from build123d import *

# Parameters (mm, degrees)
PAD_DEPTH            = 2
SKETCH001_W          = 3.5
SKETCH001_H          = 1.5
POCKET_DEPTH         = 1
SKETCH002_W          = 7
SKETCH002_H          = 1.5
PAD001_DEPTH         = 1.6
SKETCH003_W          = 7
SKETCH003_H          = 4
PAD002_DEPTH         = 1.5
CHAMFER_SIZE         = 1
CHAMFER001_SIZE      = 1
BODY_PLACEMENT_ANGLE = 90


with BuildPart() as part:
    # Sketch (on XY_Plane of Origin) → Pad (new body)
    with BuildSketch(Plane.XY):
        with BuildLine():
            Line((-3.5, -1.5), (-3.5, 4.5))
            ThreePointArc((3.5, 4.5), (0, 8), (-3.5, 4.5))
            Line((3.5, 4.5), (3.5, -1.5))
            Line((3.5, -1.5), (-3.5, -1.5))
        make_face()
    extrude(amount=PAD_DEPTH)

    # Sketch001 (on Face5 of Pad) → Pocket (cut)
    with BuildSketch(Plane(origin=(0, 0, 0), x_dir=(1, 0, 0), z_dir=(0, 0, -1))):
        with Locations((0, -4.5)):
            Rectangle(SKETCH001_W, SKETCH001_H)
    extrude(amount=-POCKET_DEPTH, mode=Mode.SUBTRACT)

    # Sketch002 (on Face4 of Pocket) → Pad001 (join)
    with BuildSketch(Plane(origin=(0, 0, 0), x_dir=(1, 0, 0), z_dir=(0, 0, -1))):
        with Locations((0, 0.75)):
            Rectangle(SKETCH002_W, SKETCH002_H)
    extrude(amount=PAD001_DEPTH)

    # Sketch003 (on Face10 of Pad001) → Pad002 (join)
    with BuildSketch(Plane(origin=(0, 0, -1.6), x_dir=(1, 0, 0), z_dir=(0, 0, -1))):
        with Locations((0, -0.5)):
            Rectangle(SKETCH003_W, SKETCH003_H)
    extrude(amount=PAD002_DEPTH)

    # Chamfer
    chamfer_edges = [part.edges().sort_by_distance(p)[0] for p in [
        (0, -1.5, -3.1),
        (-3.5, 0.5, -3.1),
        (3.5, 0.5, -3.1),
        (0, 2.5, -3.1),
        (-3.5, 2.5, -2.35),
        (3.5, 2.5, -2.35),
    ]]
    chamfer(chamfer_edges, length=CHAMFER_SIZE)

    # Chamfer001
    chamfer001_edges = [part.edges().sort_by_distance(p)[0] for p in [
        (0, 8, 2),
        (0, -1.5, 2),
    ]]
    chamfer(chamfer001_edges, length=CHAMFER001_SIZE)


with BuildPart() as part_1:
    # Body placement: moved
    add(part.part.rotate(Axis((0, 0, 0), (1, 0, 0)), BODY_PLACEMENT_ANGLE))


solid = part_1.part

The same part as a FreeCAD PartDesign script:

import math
import FreeCAD as App
import Part
import Sketcher
from FreeCAD import Vector


def edges_at(feature, points):
    """Names of the edges that pass closest to the given points."""
    edges = feature.Shape.Edges
    near = lambda p: min(range(len(edges)), key=lambda i: edges[i].distToShape(Part.Vertex(*p))[0])
    return sorted({f"Edge{near(p) + 1}" for p in points})

doc = App.newDocument("Part")
body = doc.addObject("PartDesign::Body", "Body")

sketch1 = body.newObject("Sketcher::SketchObject", "Sketch")
sketch1.AttachmentSupport = (doc.getObject("XY_Plane"), [""])
sketch1.MapMode = "FlatFace"
sketch1.addGeometry(Part.LineSegment(Vector(-3.5, 4.5, 0), Vector(-3.5, -1.5, 0)), False)
sketch1.addGeometry(Part.LineSegment(Vector(-3.5, -1.5, 0), Vector(3.5, -1.5, 0)), False)
sketch1.addGeometry(Part.LineSegment(Vector(3.5, -1.5, 0), Vector(3.5, 4.5, 0)), False)
sketch1.addGeometry(Part.ArcOfCircle(Part.Circle(Vector(0, 4.5, 0), Vector(0, 0, 1), 3.5), math.radians(0), math.radians(180)), False)
sketch1.addConstraint(Sketcher.Constraint("Coincident", 0, 2, 1, 1))
sketch1.addConstraint(Sketcher.Constraint("Coincident", 1, 2, 2, 1))
sketch1.addConstraint(Sketcher.Constraint("Tangent", 2, 2, 3, 1))
sketch1.addConstraint(Sketcher.Constraint("Tangent", 3, 2, 0, 1))
sketch1.addConstraint(Sketcher.Constraint("Vertical", 0))
sketch1.addConstraint(Sketcher.Constraint("Horizontal", 1))
sketch1.addConstraint(Sketcher.Constraint("Vertical", 2))
sketch1.addConstraint(Sketcher.Constraint("PointOnObject", 3, 3, -2))
sketch1.addConstraint(Sketcher.Constraint("Radius", 3, 3.5))
sketch1.addConstraint(Sketcher.Constraint("DistanceY", 0, 2, 0, 1, 6.0))
sketch1.addConstraint(Sketcher.Constraint("DistanceY", -1, 1, 3, 3, 4.5))
pad1 = body.newObject("PartDesign::Pad", "Pad")
pad1.Profile = sketch1
pad1.Length = 2

sketch2 = body.newObject("Sketcher::SketchObject", "Sketch001")
sketch2.AttachmentSupport = (doc.getObject("XY_Plane"), [""])
sketch2.MapMode = "FlatFace"
sketch2.addGeometry(Part.LineSegment(Vector(-1.8, 3.8, 0), Vector(-1.8, 5.2, 0)), False)
sketch2.addGeometry(Part.LineSegment(Vector(-1.8, 5.2, 0), Vector(1.8, 5.2, 0)), False)
sketch2.addGeometry(Part.LineSegment(Vector(1.8, 5.2, 0), Vector(1.8, 3.8, 0)), False)
sketch2.addGeometry(Part.LineSegment(Vector(1.8, 3.8, 0), Vector(-1.8, 3.8, 0)), False)
sketch2.addConstraint(Sketcher.Constraint("Coincident", 0, 2, 1, 1))
sketch2.addConstraint(Sketcher.Constraint("Coincident", 1, 2, 2, 1))
sketch2.addConstraint(Sketcher.Constraint("Coincident", 2, 2, 3, 1))
sketch2.addConstraint(Sketcher.Constraint("Coincident", 3, 2, 0, 1))
sketch2.addConstraint(Sketcher.Constraint("Vertical", 0))
sketch2.addConstraint(Sketcher.Constraint("Horizontal", 1))
sketch2.addConstraint(Sketcher.Constraint("Vertical", 2))
sketch2.addConstraint(Sketcher.Constraint("Horizontal", 3))
sketch2.addConstraint(Sketcher.Constraint("DistanceX", 1, 1, 1, 2, 3.5))
sketch2.addConstraint(Sketcher.Constraint("DistanceY", 0, 1, 0, 2, 1.5))
sketch2.addConstraint(Sketcher.Constraint("DistanceX", 0, 2, -1, 1, 1.75))
sketch2.addConstraint(Sketcher.Constraint("DistanceY", -1, 1, 0, 2, 5.25))
pocket1 = body.newObject("PartDesign::Pocket", "Pocket")
pocket1.Profile = sketch2
pocket1.Length = 1
pocket1.Reversed = True

sketch3 = body.newObject("Sketcher::SketchObject", "Sketch002")
sketch3.AttachmentSupport = (doc.getObject("XY_Plane"), [""])
sketch3.MapMode = "FlatFace"
sketch3.addGeometry(Part.LineSegment(Vector(-3.5, -1.5, 0), Vector(-3.5, 0, 0)), False)
sketch3.addGeometry(Part.LineSegment(Vector(-3.5, 0, 0), Vector(3.5, 0, 0)), False)
sketch3.addGeometry(Part.LineSegment(Vector(3.5, 0, 0), Vector(3.5, -1.5, 0)), False)
sketch3.addGeometry(Part.LineSegment(Vector(3.5, -1.5, 0), Vector(-3.5, -1.5, 0)), False)
sketch3.addConstraint(Sketcher.Constraint("Coincident", 0, 2, 1, 1))
sketch3.addConstraint(Sketcher.Constraint("Coincident", 1, 2, 2, 1))
sketch3.addConstraint(Sketcher.Constraint("Coincident", 2, 2, 3, 1))
sketch3.addConstraint(Sketcher.Constraint("Coincident", 3, 2, 0, 1))
sketch3.addConstraint(Sketcher.Constraint("Vertical", 0))
sketch3.addConstraint(Sketcher.Constraint("Horizontal", 1))
sketch3.addConstraint(Sketcher.Constraint("Vertical", 2))
sketch3.addConstraint(Sketcher.Constraint("Horizontal", 3))
sketch3.addConstraint(Sketcher.Constraint("Symmetric", 0, 2, 1, 2, -1, 1))
sketch3.addConstraint(Sketcher.Constraint("DistanceX", 1, 1, 1, 2, 7.0))
sketch3.addConstraint(Sketcher.Constraint("DistanceY", 0, 1, 0, 2, 1.5))
pad2 = body.newObject("PartDesign::Pad", "Pad001")
pad2.Profile = sketch3
pad2.Length = 1.6
pad2.Reversed = True

sketch4 = body.newObject("Sketcher::SketchObject", "Sketch003")
sketch4.AttachmentSupport = (doc.getObject("XY_Plane"), [""])
sketch4.MapMode = "FlatFace"
sketch4.AttachmentOffset = App.Placement(Vector(0, 0, -1.6), App.Rotation())
sketch4.addGeometry(Part.LineSegment(Vector(-3.5, -1.5, 0), Vector(-3.5, 2.5, 0)), False)
sketch4.addGeometry(Part.LineSegment(Vector(-3.5, 2.5, 0), Vector(3.5, 2.5, 0)), False)
sketch4.addGeometry(Part.LineSegment(Vector(3.5, 2.5, 0), Vector(3.5, -1.5, 0)), False)
sketch4.addGeometry(Part.LineSegment(Vector(3.5, -1.5, 0), Vector(-3.5, -1.5, 0)), False)
sketch4.addConstraint(Sketcher.Constraint("Coincident", 0, 2, 1, 1))
sketch4.addConstraint(Sketcher.Constraint("Coincident", 1, 2, 2, 1))
sketch4.addConstraint(Sketcher.Constraint("Coincident", 2, 2, 3, 1))
sketch4.addConstraint(Sketcher.Constraint("Coincident", 3, 2, 0, 1))
sketch4.addConstraint(Sketcher.Constraint("Vertical", 0))
sketch4.addConstraint(Sketcher.Constraint("Horizontal", 1))
sketch4.addConstraint(Sketcher.Constraint("Vertical", 2))
sketch4.addConstraint(Sketcher.Constraint("Horizontal", 3))
sketch4.addConstraint(Sketcher.Constraint("DistanceX", 1, 1, 1, 2, 7.0))
sketch4.addConstraint(Sketcher.Constraint("DistanceY", 0, 1, 0, 2, 4.0))
sketch4.addConstraint(Sketcher.Constraint("DistanceX", 0, 2, -1, 1, 3.5))
sketch4.addConstraint(Sketcher.Constraint("DistanceY", -1, 1, 0, 2, 2.5))
pad3 = body.newObject("PartDesign::Pad", "Pad002")
pad3.Profile = sketch4
pad3.Length = 1.5
pad3.Reversed = True
doc.recompute()

chamfer = body.newObject("PartDesign::Chamfer", "Chamfer")
chamfer.Base = (pad3, edges_at(pad3, [
    (0, -1.5, -3.1),
    (-3.5, 0.5, -3.1),
    (3.5, 0.5, -3.1),
    (0, 2.5, -3.1),
    (-3.5, 2.5, -2.35),
    (3.5, 2.5, -2.35),
]))
chamfer.Size = 1
doc.recompute()

chamfer2 = body.newObject("PartDesign::Chamfer", "Chamfer001")
chamfer2.Base = (chamfer, edges_at(chamfer, [(0, 8, 2), (0, -1.5, 2)]))
chamfer2.Size = 1
body2 = doc.addObject("PartDesign::Body", "Body001")
doc.recompute()

body.Placement = App.Placement(Vector(0, 0, 0), App.Rotation(Vector(1, 0, 0), 90))
boolean = body2.newObject("PartDesign::Boolean", "Boolean")
boolean.Type = "Fuse"
boolean.addObjects([body])

doc.recompute()
